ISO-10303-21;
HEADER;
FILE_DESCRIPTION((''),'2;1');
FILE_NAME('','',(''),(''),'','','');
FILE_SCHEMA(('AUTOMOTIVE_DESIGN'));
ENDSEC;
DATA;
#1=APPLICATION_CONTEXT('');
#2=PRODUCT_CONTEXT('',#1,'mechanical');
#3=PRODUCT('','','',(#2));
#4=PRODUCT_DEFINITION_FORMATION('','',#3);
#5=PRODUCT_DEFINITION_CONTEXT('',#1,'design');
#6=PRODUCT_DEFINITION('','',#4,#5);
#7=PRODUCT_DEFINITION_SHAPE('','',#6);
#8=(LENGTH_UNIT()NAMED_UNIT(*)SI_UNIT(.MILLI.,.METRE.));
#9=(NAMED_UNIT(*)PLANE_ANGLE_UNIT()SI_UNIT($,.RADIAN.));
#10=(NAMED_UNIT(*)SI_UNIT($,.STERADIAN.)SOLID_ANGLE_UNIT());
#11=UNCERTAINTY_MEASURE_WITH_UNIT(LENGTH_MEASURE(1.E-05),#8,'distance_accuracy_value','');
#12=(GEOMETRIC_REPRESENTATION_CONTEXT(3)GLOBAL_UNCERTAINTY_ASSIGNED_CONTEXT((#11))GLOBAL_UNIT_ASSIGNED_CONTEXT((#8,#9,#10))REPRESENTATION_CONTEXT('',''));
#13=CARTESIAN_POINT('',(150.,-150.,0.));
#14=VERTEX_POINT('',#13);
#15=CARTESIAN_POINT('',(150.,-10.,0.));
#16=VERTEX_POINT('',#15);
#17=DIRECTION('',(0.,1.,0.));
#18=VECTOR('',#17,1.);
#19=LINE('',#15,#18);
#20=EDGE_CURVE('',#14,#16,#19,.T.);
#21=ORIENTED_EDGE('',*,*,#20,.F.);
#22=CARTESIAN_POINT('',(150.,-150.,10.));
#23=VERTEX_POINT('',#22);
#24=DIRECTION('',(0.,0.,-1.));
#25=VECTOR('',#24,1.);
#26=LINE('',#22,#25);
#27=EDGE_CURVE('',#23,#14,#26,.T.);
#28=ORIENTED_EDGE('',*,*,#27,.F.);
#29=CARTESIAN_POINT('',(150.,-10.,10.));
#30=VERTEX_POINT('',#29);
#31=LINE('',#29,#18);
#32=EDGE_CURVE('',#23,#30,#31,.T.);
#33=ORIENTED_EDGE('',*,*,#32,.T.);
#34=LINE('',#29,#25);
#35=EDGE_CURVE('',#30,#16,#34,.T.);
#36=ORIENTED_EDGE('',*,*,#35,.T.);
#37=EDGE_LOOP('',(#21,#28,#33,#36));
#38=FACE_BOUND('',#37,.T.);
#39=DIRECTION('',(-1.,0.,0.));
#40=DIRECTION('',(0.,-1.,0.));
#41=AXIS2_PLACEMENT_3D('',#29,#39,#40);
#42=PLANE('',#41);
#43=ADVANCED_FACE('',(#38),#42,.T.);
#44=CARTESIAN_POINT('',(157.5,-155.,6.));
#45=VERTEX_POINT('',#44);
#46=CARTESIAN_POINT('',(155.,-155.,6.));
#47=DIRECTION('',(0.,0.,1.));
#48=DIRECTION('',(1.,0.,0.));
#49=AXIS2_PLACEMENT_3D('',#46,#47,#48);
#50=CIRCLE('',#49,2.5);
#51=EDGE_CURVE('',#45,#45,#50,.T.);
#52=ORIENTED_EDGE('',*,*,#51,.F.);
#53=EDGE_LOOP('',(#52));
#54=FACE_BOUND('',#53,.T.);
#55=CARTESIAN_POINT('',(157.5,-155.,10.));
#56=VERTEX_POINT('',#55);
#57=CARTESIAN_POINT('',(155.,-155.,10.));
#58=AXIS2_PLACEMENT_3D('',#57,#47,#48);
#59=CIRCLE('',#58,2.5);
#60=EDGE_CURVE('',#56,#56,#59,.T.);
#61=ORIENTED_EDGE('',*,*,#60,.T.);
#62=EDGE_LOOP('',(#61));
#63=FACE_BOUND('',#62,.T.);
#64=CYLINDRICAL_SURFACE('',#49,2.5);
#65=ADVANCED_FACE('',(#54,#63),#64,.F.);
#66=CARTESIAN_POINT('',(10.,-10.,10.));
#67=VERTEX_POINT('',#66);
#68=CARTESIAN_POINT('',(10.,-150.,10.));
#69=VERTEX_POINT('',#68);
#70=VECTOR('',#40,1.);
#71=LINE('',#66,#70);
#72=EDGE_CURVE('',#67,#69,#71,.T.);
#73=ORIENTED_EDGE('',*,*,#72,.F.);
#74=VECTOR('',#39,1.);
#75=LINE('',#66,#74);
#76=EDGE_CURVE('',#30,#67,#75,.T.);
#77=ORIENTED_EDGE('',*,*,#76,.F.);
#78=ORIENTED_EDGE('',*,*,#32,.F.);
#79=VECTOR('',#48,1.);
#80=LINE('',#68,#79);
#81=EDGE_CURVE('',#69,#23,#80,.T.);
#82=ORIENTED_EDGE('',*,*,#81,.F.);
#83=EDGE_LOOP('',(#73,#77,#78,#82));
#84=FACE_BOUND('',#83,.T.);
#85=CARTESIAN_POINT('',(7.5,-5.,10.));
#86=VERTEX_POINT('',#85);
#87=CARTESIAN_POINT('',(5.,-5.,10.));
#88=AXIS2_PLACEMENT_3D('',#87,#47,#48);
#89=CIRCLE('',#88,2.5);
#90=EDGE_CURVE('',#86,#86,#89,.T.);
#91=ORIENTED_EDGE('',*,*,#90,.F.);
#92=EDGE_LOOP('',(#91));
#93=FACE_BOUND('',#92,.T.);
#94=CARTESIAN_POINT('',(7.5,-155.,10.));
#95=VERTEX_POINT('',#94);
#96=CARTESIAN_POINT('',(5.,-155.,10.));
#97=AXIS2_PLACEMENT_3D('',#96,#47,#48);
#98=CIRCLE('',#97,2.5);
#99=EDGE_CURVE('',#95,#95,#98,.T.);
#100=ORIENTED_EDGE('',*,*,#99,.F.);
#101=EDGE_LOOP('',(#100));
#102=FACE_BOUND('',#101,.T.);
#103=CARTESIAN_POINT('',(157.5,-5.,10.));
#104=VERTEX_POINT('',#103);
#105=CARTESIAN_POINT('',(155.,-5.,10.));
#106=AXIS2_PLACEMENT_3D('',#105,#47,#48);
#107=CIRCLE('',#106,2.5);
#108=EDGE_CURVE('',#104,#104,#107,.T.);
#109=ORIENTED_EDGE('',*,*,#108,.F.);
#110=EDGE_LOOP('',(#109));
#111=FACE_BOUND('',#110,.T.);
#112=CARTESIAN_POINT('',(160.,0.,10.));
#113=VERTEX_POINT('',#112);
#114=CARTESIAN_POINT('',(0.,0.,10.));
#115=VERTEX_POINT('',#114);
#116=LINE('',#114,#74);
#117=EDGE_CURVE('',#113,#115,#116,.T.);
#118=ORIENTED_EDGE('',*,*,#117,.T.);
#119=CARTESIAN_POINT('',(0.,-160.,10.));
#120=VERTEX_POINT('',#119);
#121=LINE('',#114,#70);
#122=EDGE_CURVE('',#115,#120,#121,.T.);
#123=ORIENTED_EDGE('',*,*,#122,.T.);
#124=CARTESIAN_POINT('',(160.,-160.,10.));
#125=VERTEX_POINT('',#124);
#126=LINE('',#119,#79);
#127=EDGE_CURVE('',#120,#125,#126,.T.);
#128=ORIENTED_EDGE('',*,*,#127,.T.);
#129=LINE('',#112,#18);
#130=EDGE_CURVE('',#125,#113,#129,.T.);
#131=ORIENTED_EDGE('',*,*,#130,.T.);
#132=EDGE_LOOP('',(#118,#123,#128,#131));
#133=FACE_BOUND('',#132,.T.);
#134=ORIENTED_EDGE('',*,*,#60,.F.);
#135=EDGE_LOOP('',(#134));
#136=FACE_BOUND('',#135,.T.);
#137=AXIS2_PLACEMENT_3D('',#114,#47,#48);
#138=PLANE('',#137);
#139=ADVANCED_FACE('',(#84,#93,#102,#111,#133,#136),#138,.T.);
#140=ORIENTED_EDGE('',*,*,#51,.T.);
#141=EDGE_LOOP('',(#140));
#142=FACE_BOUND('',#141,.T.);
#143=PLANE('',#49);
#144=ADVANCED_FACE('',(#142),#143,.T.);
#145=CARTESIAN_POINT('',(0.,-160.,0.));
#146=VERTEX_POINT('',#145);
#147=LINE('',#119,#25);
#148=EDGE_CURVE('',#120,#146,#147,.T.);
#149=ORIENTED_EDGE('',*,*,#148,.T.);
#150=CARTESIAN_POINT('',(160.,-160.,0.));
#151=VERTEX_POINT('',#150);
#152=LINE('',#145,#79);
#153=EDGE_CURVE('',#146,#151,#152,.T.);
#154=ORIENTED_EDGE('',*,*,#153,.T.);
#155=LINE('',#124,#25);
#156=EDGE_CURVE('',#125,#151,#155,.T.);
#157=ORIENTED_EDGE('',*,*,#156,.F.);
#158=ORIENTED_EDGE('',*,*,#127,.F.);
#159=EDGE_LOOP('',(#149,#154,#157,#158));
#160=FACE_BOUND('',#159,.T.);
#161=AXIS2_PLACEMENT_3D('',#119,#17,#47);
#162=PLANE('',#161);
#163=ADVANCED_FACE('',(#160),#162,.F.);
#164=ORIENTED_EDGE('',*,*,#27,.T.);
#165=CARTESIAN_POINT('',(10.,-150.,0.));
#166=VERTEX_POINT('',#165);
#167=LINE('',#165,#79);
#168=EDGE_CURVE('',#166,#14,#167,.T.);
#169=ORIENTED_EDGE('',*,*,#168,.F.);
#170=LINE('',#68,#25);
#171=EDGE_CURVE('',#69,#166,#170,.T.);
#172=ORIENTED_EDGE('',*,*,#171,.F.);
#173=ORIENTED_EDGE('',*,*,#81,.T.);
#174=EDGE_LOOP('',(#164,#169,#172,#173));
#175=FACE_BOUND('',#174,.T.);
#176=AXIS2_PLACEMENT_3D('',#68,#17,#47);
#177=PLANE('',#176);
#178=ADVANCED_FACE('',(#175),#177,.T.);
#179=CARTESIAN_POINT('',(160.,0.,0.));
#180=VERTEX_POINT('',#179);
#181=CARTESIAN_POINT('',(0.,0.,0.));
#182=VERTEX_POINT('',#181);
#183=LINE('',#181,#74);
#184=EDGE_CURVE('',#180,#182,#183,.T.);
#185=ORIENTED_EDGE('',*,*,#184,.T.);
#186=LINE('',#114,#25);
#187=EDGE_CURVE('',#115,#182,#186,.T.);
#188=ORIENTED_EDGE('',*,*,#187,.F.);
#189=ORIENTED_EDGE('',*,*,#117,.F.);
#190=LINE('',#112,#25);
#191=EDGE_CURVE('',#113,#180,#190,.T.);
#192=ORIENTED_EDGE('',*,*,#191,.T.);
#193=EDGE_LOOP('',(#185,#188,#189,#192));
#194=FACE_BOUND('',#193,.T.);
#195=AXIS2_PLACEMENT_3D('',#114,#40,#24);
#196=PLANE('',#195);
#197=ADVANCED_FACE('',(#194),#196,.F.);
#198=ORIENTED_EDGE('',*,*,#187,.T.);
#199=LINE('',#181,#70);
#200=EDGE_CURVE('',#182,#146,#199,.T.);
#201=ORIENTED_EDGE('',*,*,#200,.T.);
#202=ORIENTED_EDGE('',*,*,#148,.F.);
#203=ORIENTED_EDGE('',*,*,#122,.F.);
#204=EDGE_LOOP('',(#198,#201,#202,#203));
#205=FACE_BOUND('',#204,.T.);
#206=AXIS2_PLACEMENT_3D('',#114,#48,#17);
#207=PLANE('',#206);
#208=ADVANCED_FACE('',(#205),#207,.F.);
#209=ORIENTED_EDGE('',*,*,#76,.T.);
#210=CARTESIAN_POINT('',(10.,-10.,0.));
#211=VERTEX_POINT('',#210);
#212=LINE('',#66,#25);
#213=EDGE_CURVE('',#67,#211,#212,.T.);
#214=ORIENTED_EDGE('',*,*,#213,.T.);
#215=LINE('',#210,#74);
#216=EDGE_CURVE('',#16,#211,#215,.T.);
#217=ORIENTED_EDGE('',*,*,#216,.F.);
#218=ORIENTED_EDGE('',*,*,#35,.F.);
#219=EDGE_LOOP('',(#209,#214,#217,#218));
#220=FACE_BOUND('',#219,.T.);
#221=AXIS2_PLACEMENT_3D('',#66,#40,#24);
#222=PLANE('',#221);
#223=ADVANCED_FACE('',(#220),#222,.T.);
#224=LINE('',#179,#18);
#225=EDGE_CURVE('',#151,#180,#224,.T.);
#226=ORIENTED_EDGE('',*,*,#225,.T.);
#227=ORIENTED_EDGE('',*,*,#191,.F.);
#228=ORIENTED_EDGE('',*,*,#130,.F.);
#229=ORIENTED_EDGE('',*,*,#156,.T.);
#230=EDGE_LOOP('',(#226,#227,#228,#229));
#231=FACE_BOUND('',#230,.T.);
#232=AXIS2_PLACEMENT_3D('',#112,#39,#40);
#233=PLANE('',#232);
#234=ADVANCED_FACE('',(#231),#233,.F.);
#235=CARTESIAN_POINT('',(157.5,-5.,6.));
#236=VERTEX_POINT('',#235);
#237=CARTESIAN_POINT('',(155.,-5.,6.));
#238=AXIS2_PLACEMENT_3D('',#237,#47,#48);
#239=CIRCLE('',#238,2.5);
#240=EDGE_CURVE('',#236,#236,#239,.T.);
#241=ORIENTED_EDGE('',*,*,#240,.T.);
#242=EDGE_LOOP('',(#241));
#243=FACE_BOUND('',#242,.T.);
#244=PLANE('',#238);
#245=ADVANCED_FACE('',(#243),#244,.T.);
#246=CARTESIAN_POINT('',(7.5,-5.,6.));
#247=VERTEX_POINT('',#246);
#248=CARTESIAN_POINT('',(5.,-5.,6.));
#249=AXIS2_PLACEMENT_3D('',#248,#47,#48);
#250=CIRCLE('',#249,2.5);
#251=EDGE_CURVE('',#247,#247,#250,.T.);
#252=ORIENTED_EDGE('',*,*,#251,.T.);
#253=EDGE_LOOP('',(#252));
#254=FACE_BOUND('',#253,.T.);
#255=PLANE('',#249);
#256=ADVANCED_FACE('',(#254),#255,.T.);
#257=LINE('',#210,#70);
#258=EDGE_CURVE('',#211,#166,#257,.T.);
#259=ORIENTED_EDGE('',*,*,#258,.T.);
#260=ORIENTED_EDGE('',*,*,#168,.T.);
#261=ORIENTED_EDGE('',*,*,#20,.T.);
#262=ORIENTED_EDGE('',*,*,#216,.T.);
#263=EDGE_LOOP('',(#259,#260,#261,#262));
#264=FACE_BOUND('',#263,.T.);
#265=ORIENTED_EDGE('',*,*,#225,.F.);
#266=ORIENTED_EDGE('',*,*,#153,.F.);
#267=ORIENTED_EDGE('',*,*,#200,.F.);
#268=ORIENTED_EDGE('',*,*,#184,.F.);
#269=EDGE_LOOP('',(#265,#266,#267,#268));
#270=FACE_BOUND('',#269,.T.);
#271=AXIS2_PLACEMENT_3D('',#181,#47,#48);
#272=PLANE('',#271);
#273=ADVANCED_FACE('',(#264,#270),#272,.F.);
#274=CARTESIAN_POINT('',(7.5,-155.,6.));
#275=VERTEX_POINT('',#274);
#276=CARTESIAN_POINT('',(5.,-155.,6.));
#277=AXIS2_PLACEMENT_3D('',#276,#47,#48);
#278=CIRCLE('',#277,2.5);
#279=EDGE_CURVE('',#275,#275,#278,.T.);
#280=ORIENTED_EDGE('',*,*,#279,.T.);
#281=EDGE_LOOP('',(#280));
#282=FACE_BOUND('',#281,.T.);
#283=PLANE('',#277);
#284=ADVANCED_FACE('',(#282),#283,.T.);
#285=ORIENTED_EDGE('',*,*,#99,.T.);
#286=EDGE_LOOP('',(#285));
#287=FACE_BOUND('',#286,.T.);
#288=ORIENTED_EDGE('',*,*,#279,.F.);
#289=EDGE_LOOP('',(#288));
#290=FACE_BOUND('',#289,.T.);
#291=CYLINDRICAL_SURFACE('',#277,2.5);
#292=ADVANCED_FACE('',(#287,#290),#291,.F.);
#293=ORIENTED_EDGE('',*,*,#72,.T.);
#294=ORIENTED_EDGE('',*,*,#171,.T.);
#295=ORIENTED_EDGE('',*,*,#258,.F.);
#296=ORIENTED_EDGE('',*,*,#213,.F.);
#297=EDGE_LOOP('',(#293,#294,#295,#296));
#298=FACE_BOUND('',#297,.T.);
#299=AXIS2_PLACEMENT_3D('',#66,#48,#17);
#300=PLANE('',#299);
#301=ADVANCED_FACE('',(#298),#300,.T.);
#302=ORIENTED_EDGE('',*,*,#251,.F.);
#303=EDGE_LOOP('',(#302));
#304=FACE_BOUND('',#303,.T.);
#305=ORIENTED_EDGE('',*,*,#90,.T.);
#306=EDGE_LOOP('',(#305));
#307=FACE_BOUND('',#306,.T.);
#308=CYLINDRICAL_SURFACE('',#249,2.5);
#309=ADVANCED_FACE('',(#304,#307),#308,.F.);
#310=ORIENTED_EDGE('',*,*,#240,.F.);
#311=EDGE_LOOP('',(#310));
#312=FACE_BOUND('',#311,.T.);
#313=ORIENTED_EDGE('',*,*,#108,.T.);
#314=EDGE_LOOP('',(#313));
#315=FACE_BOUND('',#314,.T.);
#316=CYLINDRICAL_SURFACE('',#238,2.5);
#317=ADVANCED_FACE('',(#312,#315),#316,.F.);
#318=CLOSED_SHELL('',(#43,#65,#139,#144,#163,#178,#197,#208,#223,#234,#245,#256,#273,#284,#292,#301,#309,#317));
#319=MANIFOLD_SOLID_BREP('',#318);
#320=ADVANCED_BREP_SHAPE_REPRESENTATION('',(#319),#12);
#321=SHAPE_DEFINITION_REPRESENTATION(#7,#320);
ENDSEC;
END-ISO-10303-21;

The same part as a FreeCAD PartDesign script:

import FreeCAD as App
import Part
import Sketcher
from FreeCAD import Vector


def add_polygon(sketch, points):
    """Adds a closed chain of lines whose ends are joined by coincident constraints."""
    first, n = sketch.GeometryCount, len(points)
    for a, b in zip(points, points[1:] + points[:1]):
        sketch.addGeometry(Part.LineSegment(App.Vector(*a, 0), App.Vector(*b, 0)), False)
    for i in range(n):
        sketch.addConstraint(Sketcher.Constraint("Coincident", first + i, 2, first + (i + 1) % n, 1))

doc = App.newDocument("Part")
body = doc.addObject("PartDesign::Body", "Body")

sketch1 = body.newObject("Sketcher::SketchObject", "Sketch")
sketch1.AttachmentSupport = (doc.getObject("XY_Plane"), [""])
sketch1.MapMode = "FlatFace"
add_polygon(sketch1, [(0, 0), (0, -160), (160, -160), (160, 0)])
add_polygon(sketch1, [(150, -150), (10, -150), (10, -10), (150, -10)])
sketch1.addConstraint([
    Sketcher.Constraint("Vertical", 0),
    Sketcher.Constraint("Horizontal", 1),
    Sketcher.Constraint("Vertical", 2),
    Sketcher.Constraint("Horizontal", 3),
    Sketcher.Constraint("Horizontal", 4),
    Sketcher.Constraint("Vertical", 5),
    Sketcher.Constraint("Horizontal", 6),
    Sketcher.Constraint("Vertical", 7),
    Sketcher.Constraint("Coincident", 3, 2, -1, 1),
    Sketcher.Constraint("Equal", 3, 0),
    Sketcher.Constraint("Equal", 6, 5),
    Sketcher.Constraint("DistanceX", 1, 1, 1, 2, 160.0),
    Sketcher.Constraint("DistanceX", 4, 2, 4, 1, 140.0),
    Sketcher.Constraint("DistanceX", -1, 1, 4, 2, 10.0),
    Sketcher.Constraint("DistanceY", 4, 2, -1, 1, 150.0),
])
pad1 = body.newObject("PartDesign::Pad", "Pad")
pad1.Profile = sketch1
pad1.Length = 10

sketch2 = body.newObject("Sketcher::SketchObject", "Sketch001")
sketch2.AttachmentSupport = (doc.getObject("XY_Plane"), [""])
sketch2.MapMode = "FlatFace"
sketch2.AttachmentOffset = App.Placement(Vector(0, 0, 10), App.Rotation())
add_polygon(sketch2, [(0, 0), (0, -10), (10, -10), (10, 0)])
add_polygon(sketch2, [(150, 0), (150, -10), (160, -10), (160, 0)])
add_polygon(sketch2, [(150, -150), (150, -160), (160, -160), (160, -150)])
add_polygon(sketch2, [(0, -150), (0, -160), (10, -160), (10, -150)])
sketch2.addConstraint([
    Sketcher.Constraint("Vertical", 0),
    Sketcher.Constraint("Horizontal", 1),
    Sketcher.Constraint("Vertical", 2),
    Sketcher.Constraint("Horizontal", 3),
    Sketcher.Constraint("Vertical", 4),
    Sketcher.Constraint("Horizontal", 5),
    Sketcher.Constraint("Vertical", 6),
    Sketcher.Constraint("Horizontal", 7),
    Sketcher.Constraint("Vertical", 8),
    Sketcher.Constraint("Horizontal", 9),
    Sketcher.Constraint("Vertical", 10),
    Sketcher.Constraint("Horizontal", 11),
    Sketcher.Constraint("Vertical", 12),
    Sketcher.Constraint("Horizontal", 13),
    Sketcher.Constraint("Vertical", 14),
    Sketcher.Constraint("Horizontal", 15),
    Sketcher.Constraint("Coincident", 3, 2, -1, 1),
    Sketcher.Constraint("PointOnObject", 6, 2, -1),
    Sketcher.Constraint("PointOnObject", 12, 2, -2),
    Sketcher.Constraint("Horizontal", 1, 2, 4, 2),
    Sketcher.Constraint("Horizontal", 9, 2, 12, 2),
    Sketcher.Constraint("Horizontal", 11, 2, 14, 2),
    Sketcher.Constraint("Vertical", 7, 2, 8, 2),
    Sketcher.Constraint("Vertical", 6, 2, 9, 2),
    Sketcher.Constraint("Vertical", 2, 2, 13, 2),
    Sketcher.Constraint("Equal", 3, 5),
    Sketcher.Constraint("Equal", 15, 0),
    Sketcher.Constraint("Equal", 6, 8),
    Sketcher.Constraint("DistanceX", 1, 1, 1, 2, 10.0),
    Sketcher.Constraint("DistanceX", -1, 1, 4, 2, 150.0),
    Sketcher.Constraint("DistanceY", 8, 2, -1, 1, 160.0),
])
pad2 = body.newObject("PartDesign::Pad", "Pad001")
pad2.Profile = sketch2
pad2.Type = "TwoLengths"
pad2.Length = 140
pad2.Length2 = 10

sketch3 = body.newObject("Sketcher::SketchObject", "Sketch002")
sketch3.AttachmentSupport = (doc.getObject("XY_Plane"), [""])
sketch3.MapMode = "FlatFace"
sketch3.AttachmentOffset = App.Placement(Vector(0, 0, 150), App.Rotation())
add_polygon(sketch3, [(0, 0), (0, -160), (160, -160), (160, 0)])
add_polygon(sketch3, [(150, -150), (10, -150), (10, -10), (150, -10)])
sketch3.addConstraint([
    Sketcher.Constraint("Vertical", 0),
    Sketcher.Constraint("Horizontal", 1),
    Sketcher.Constraint("Vertical", 2),
    Sketcher.Constraint("Horizontal", 3),
    Sketcher.Constraint("Horizontal", 4),
    Sketcher.Constraint("Vertical", 5),
    Sketcher.Constraint("Horizontal", 6),
    Sketcher.Constraint("Vertical", 7),
    Sketcher.Constraint("Coincident", 3, 2, -1, 1),
    Sketcher.Constraint("Equal", 3, 0),
    Sketcher.Constraint("Equal", 6, 5),
    Sketcher.Constraint("DistanceX", 1, 1, 1, 2, 160.0),
    Sketcher.Constraint("DistanceX", 4, 2, 4, 1, 140.0),
    Sketcher.Constraint("DistanceX", -1, 1, 4, 2, 10.0),
    Sketcher.Constraint("DistanceY", 4, 2, -1, 1, 150.0),
])
pad3 = body.newObject("PartDesign::Pad", "Pad002")
pad3.Profile = sketch3
pad3.Length = 10

sketch4 = body.newObject("Sketcher::SketchObject", "Sketch003")
sketch4.AttachmentSupport = (doc.getObject("XY_Plane"), [""])
sketch4.MapMode = "FlatFace"
sketch4.AttachmentOffset = App.Placement(Vector(0, 0, 160), App.Rotation())
add_polygon(sketch4, [(0, -74), (0, -86), (63, -86), (63, -74)])
sketch4.addGeometry(Part.Circle(Vector(55, -80, 0), Vector(0, 0, 1), 2.5), False)
add_polygon(sketch4, [(97, -74), (97, -86), (160, -86), (160, -74)])
sketch4.addGeometry(Part.Circle(Vector(105, -80, 0), Vector(0, 0, 1), 2.5), False)
sketch4.addConstraint([
    Sketcher.Constraint("Vertical", 0),
    Sketcher.Constraint("Horizontal", 1),
    Sketcher.Constraint("Vertical", 2),
    Sketcher.Constraint("Horizontal", 3),
    Sketcher.Constraint("Vertical", 5),
    Sketcher.Constraint("Horizontal", 6),
    Sketcher.Constraint("Vertical", 7),
    Sketcher.Constraint("Horizontal", 8),
    Sketcher.Constraint("Equal", 4, 9),
    Sketcher.Constraint("PointOnObject", 0, 2, -2),
    Sketcher.Constraint("Horizontal", 4, 3, 9, 3),
    Sketcher.Constraint("Horizontal", 1, 2, 5, 2),
    Sketcher.Constraint("Horizontal", 3, 2, 7, 2),
    Sketcher.Constraint("Equal", 3, 6),
    Sketcher.Constraint("Diameter", 4, 5.0),
    Sketcher.Constraint("DistanceX", 1, 1, 1, 2, 63.0),
    Sketcher.Constraint("DistanceY", 0, 2, 0, 1, 12.0),
    Sketcher.Constraint("DistanceX", -1, 1, 4, 3, 55.0),
    Sketcher.Constraint("DistanceY", 4, 3, -1, 1, 80.0),
    Sketcher.Constraint("DistanceX", -1, 1, 9, 3, 105.0),
    Sketcher.Constraint("DistanceY", 0, 2, -1, 1, 86.0),
    Sketcher.Constraint("DistanceX", -1, 1, 5, 2, 97.0),
])
pad4 = body.newObject("PartDesign::Pad", "Pad003")
pad4.Profile = sketch4
pad4.Length = 5
pad4.Reversed = True

sketch5 = body.newObject("Sketcher::SketchObject", "Sketch004")
sketch5.AttachmentSupport = (doc.getObject("YZ_Plane"), [""])
sketch5.MapMode = "FlatFace"
add_polygon(sketch5, [(5, 10), (-175, 10), (-175, 184), (5, 184)])
sketch5.addConstraint([
    Sketcher.Constraint("Horizontal", 0),
    Sketcher.Constraint("Vertical", 1),
    Sketcher.Constraint("Horizontal", 2),
    Sketcher.Constraint("Vertical", 3),
    Sketcher.Constraint("DistanceY", -1, 1, 0, 2, 10.0),
    Sketcher.Constraint("DistanceX", 0, 2, 0, 1, 180.535523),
    Sketcher.Constraint("DistanceY", 1, 1, 1, 2, 174.167703),
    Sketcher.Constraint("DistanceX", 0, 2, -1, 1, 175.221567),
])
pocket1 = body.newObject("PartDesign::Pocket", "Pocket")
pocket1.Profile = sketch5
pocket1.Type = "ThroughAll"
pocket1.Reversed = True

sketch6 = body.newObject("Sketcher::SketchObject", "Sketch005")
sketch6.AttachmentSupport = (doc.getObject("XY_Plane"), [""])
sketch6.MapMode = "FlatFace"
sketch6.AttachmentOffset = App.Placement(Vector(0, 0, 10), App.Rotation())
sketch6.addGeometry([
    Part.Circle(Vector(5, -155, 0), Vector(0, 0, 1), 2.5),
    Part.Circle(Vector(5, -5, 0), Vector(0, 0, 1), 2.5),
    Part.Circle(Vector(155, -5, 0), Vector(0, 0, 1), 2.5),
    Part.Circle(Vector(155, -155, 0), Vector(0, 0, 1), 2.5),
], False)
sketch6.addConstraint([
    Sketcher.Constraint("Equal", 0, 1),
    Sketcher.Constraint("Equal", 1, 2),
    Sketcher.Constraint("Equal", 2, 3),
    Sketcher.Constraint("Horizontal", 1, 3, 2, 3),
    Sketcher.Constraint("Horizontal", 0, 3, 3, 3),
    Sketcher.Constraint("Vertical", 0, 3, 1, 3),
    Sketcher.Constraint("Vertical", 2, 3, 3, 3),
    Sketcher.Constraint("Diameter", 0, 5.0),
    Sketcher.Constraint("DistanceX", -1, 1, 0, 3, 5.0),
    Sketcher.Constraint("DistanceY", 0, 3, -1, 1, 155.0),
    Sketcher.Constraint("DistanceY", 1, 3, -1, 1, 5.0),
    Sketcher.Constraint("DistanceX", -1, 1, 2, 3, 155.0),
])
pocket2 = body.newObject("PartDesign::Pocket", "Pocket001")
pocket2.Profile = sketch6
pocket2.Length = 4

doc.recompute()
